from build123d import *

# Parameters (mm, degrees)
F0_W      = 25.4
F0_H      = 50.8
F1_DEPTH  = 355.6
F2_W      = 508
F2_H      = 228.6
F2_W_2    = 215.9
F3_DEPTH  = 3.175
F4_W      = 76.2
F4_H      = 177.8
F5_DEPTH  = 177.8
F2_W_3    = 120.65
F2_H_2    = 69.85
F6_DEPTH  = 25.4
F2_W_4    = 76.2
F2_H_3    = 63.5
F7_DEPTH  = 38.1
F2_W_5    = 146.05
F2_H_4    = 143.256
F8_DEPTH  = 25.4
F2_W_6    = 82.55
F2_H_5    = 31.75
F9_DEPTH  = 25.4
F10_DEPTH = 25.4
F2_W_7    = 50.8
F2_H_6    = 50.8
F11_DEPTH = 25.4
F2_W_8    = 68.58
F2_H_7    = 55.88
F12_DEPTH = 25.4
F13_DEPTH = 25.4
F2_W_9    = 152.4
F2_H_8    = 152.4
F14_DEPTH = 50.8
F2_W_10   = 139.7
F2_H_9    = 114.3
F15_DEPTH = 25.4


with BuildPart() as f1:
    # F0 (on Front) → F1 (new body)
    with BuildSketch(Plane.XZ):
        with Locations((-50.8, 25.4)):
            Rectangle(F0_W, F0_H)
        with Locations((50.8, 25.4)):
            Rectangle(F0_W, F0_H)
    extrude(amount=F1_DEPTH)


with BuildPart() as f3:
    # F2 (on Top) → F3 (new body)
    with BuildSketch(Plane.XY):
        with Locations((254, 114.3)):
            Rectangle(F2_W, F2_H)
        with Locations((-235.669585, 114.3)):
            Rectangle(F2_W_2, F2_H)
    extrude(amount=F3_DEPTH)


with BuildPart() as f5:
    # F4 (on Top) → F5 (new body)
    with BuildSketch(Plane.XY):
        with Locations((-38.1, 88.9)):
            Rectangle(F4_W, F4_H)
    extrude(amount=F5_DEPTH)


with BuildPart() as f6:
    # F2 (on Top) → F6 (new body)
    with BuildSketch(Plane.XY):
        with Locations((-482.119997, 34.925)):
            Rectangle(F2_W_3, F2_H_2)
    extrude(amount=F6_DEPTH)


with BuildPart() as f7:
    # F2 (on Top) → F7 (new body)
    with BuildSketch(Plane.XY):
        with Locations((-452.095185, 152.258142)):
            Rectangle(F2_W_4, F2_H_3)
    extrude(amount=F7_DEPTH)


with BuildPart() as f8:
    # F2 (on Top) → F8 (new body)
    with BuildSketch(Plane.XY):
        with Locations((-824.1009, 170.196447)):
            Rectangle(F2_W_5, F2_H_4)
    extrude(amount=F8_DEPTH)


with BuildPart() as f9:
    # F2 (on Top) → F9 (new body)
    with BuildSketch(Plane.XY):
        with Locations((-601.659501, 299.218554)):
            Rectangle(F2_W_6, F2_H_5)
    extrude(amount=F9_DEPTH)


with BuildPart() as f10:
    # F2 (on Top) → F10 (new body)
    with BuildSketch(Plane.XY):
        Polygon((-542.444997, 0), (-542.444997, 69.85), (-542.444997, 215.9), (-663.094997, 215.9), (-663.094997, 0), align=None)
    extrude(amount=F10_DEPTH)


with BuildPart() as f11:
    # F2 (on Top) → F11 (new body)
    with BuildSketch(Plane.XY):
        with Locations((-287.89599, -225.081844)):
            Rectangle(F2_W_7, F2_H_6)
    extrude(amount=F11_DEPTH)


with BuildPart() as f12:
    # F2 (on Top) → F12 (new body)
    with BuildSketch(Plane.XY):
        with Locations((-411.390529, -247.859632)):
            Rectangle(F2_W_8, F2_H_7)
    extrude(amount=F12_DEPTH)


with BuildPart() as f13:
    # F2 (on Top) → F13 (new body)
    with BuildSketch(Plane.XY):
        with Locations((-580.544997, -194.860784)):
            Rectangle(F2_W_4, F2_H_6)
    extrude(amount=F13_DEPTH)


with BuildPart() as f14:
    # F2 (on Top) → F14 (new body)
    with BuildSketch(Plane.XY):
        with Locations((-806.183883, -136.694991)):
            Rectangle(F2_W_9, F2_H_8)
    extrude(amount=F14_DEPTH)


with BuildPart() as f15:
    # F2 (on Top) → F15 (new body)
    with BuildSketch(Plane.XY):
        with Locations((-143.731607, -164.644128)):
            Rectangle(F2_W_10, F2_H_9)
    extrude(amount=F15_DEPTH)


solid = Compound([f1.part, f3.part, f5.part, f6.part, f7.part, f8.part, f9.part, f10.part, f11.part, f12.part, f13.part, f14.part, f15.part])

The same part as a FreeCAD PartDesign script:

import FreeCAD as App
import Part
import Sketcher
Q = App.Units.Quantity


def add_polygon(sketch, points):
    """Adds a closed chain of lines whose ends are joined by coincident constraints."""
    first, n = sketch.GeometryCount, len(points)
    for a, b in zip(points, points[1:] + points[:1]):
        sketch.addGeometry(Part.LineSegment(App.Vector(*a, 0), App.Vector(*b, 0)), False)
    for i in range(n):
        sketch.addConstraint(Sketcher.Constraint("Coincident", first + i, 2, first + (i + 1) % n, 1))

doc = App.newDocument("Part")
body = doc.addObject("PartDesign::Body", "Body")
body.AllowCompound = True

# Sketch on XZ plane
sketch1 = doc.addObject("Sketcher::SketchObject", "Sketch")
body.addObject(sketch1)
sketch1.AttachmentSupport = (doc.XZ_Plane, [""])
sketch1.MapMode = "FlatFace"
add_polygon(sketch1, [(-64, 51), (-64, 0), (-38, 0), (-38, 51)])  # lines 0-3
add_polygon(sketch1, [(38, 51), (38, 0), (64, 0), (64, 51)])  # lines 4-7
sketch1.addConstraint([
    Sketcher.Constraint("Vertical", 0),
    Sketcher.Constraint("Horizontal", 1),
    Sketcher.Constraint("Vertical", 2),
    Sketcher.Constraint("Horizontal", 3),
    Sketcher.Constraint("Vertical", 4),
    Sketcher.Constraint("Horizontal", 5),
    Sketcher.Constraint("Vertical", 6),
    Sketcher.Constraint("Horizontal", 7),
    Sketcher.Constraint("Symmetric", 1, 2, 4, 2, -1, 1),
    Sketcher.Constraint("Symmetric", 0, 2, 5, 2, -2),
    Sketcher.Constraint("Horizontal", 3, 2, 6, 2),
    Sketcher.Constraint("DistanceX", 1, 1, 1, 2, Q("1 in")),
    Sketcher.Constraint("DistanceY", 0, 2, 0, 1, Q("2 in")),
    Sketcher.Constraint("DistanceX", 1, 2, 4, 2, Q("3 in")),
])
pad1 = doc.addObject("PartDesign::Pad", "Pad")
body.addObject(pad1)
pad1.Profile = sketch1
pad1.Length = Q("14 in")
body2 = doc.addObject("PartDesign::Body", "Body001")
body2.AllowCompound = True

# Sketch on XY plane
sketch2 = doc.addObject("Sketcher::SketchObject", "Sketch001")
body2.addObject(sketch2)
sketch2.AttachmentSupport = (doc.getObject("XY_Plane001"), [""])
sketch2.MapMode = "FlatFace"
add_polygon(sketch2, [(0, 229), (0, 0), (508, 0), (508, 229)])  # lines 0-3
add_polygon(sketch2, [(-344, 229), (-344, 0), (-128, 0), (-128, 229)])  # lines 4-7
sketch2.addConstraint([
    Sketcher.Constraint("Vertical", 0),
    Sketcher.Constraint("Horizontal", 1),
    Sketcher.Constraint("Vertical", 2),
    Sketcher.Constraint("Horizontal", 3),
    Sketcher.Constraint("Vertical", 4),
    Sketcher.Constraint("Horizontal", 5),
    Sketcher.Constraint("Vertical", 6),
    Sketcher.Constraint("Horizontal", 7),
    Sketcher.Constraint("Coincident", 0, 2, -1, 1),
    Sketcher.Constraint("PointOnObject", 4, 2, -1),
    Sketcher.Constraint("Horizontal", 3, 2, 6, 2),
    Sketcher.Constraint("DistanceX", 1, 1, 1, 2, Q("20 in")),
    Sketcher.Constraint("DistanceY", 0, 2, 0, 1, Q("9 in")),
    Sketcher.Constraint("DistanceX", 5, 1, 5, 2, Q("8.5 in")),
    Sketcher.Constraint("DistanceX", 4, 2, -1, 1, 343.619585),
])
pad2 = doc.addObject("PartDesign::Pad", "Pad001")
body2.addObject(pad2)
pad2.Profile = sketch2
pad2.Length = Q("0.125 in")
body3 = doc.addObject("PartDesign::Body", "Body002")

# Sketch on XY plane
sketch3 = doc.addObject("Sketcher::SketchObject", "Sketch002")
body3.addObject(sketch3)
sketch3.AttachmentSupport = (doc.getObject("XY_Plane002"), [""])
sketch3.MapMode = "FlatFace"
add_polygon(sketch3, [(-76, 178), (-76, 0), (0, 0), (0, 178)])  # lines 0-3
sketch3.addConstraint([
    Sketcher.Constraint("Vertical", 0),
    Sketcher.Constraint("Horizontal", 1),
    Sketcher.Constraint("Vertical", 2),
    Sketcher.Constraint("Horizontal", 3),
    Sketcher.Constraint("Coincident", 1, 2, -1, 1),
    Sketcher.Constraint("DistanceX", 1, 1, 1, 2, Q("3 in")),
    Sketcher.Constraint("DistanceY", 0, 2, 0, 1, Q("7 in")),
])
pad3 = doc.addObject("PartDesign::Pad", "Pad002")
body3.addObject(pad3)
pad3.Profile = sketch3
pad3.Length = Q("7 in")
body4 = doc.addObject("PartDesign::Body", "Body003")

# Sketch on XY plane
sketch4 = doc.addObject("Sketcher::SketchObject", "Sketch003")
body4.addObject(sketch4)
sketch4.AttachmentSupport = (doc.getObject("XY_Plane003"), [""])
sketch4.MapMode = "FlatFace"
add_polygon(sketch4, [(-542, 70), (-542, 0), (-422, 0), (-422, 70)])  # lines 0-3
sketch4.addConstraint([
    Sketcher.Constraint("Vertical", 0),
    Sketcher.Constraint("Horizontal", 1),
    Sketcher.Constraint("Vertical", 2),
    Sketcher.Constraint("Horizontal", 3),
    Sketcher.Constraint("PointOnObject", 0, 2, -1),
    Sketcher.Constraint("DistanceX", 1, 1, 1, 2, Q("4.75 in")),
    Sketcher.Constraint("DistanceY", 0, 2, 0, 1, Q("2.75 in")),
    Sketcher.Constraint("DistanceX", 0, 2, -1, 1, 542.444997),
])
pad4 = doc.addObject("PartDesign::Pad", "Pad003")
body4.addObject(pad4)
pad4.Profile = sketch4
pad4.Length = Q("1 in")
body5 = doc.addObject("PartDesign::Body", "Body004")

# Sketch on XY plane
sketch5 = doc.addObject("Sketcher::SketchObject", "Sketch004")
body5.addObject(sketch5)
sketch5.AttachmentSupport = (doc.getObject("XY_Plane004"), [""])
sketch5.MapMode = "FlatFace"
add_polygon(sketch5, [(-490, 184), (-490, 121), (-414, 121), (-414, 184)])  # lines 0-3
sketch5.addConstraint([
    Sketcher.Constraint("Vertical", 0),
    Sketcher.Constraint("Horizontal", 1),
    Sketcher.Constraint("Vertical", 2),
    Sketcher.Constraint("Horizontal", 3),
    Sketcher.Constraint("DistanceX", 1, 1, 1, 2, Q("3 in")),
    Sketcher.Constraint("DistanceY", 0, 2, 0, 1, Q("2.5 in")),
    Sketcher.Constraint("DistanceY", -1, 1, 2, 2, 184.008142),
    Sketcher.Constraint("DistanceX", 0, 2, -1, 1, 490.195185),
])
pad5 = doc.addObject("PartDesign::Pad", "Pad004")
body5.addObject(pad5)
pad5.Profile = sketch5
pad5.Length = Q("1.5 in")
body6 = doc.addObject("PartDesign::Body", "Body005")

# Sketch on XY plane
sketch6 = doc.addObject("Sketcher::SketchObject", "Sketch005")
body6.addObject(sketch6)
sketch6.AttachmentSupport = (doc.getObject("XY_Plane005"), [""])
sketch6.MapMode = "FlatFace"
add_polygon(sketch6, [(-897, 242), (-897, 99), (-751, 99), (-751, 242)])  # lines 0-3
sketch6.addConstraint([
    Sketcher.Constraint("Vertical", 0),
    Sketcher.Constraint("Horizontal", 1),
    Sketcher.Constraint("Vertical", 2),
    Sketcher.Constraint("Horizontal", 3),
    Sketcher.Constraint("DistanceX", 1, 1, 1, 2, Q("5.75 in")),
    Sketcher.Constraint("DistanceY", 0, 2, 0, 1, Q("5.64 in")),
    Sketcher.Constraint("DistanceX", 0, 2, -1, 1, 897.1259),
    Sketcher.Constraint("DistanceY", -1, 1, 0, 2, 98.568447),
])
pad6 = doc.addObject("PartDesign::Pad", "Pad005")
body6.addObject(pad6)
pad6.Profile = sketch6
pad6.Length = Q("1 in")
body7 = doc.addObject("PartDesign::Body", "Body006")

# Sketch on XY plane
sketch7 = doc.addObject("Sketcher::SketchObject", "Sketch006")
body7.addObject(sketch7)
sketch7.AttachmentSupport = (doc.getObject("XY_Plane006"), [""])
sketch7.MapMode = "FlatFace"
add_polygon(sketch7, [(-643, 315), (-643, 283), (-560, 283), (-560, 315)])  # lines 0-3
sketch7.addConstraint([
    Sketcher.Constraint("Vertical", 0),
    Sketcher.Constraint("Horizontal", 1),
    Sketcher.Constraint("Vertical", 2),
    Sketcher.Constraint("Horizontal", 3),
    Sketcher.Constraint("DistanceX", 1, 1, 1, 2, Q("3.25 in")),
    Sketcher.Constraint("DistanceY", 0, 2, 0, 1, Q("1.25 in")),
    Sketcher.Constraint("DistanceX", 0, 2, -1, 1, 642.934501),
    Sketcher.Constraint("DistanceY", -1, 1, 0, 2, 283.343554),
])
pad7 = doc.addObject("PartDesign::Pad", "Pad006")
body7.addObject(pad7)
pad7.Profile = sketch7
pad7.Length = Q("1 in")
body8 = doc.addObject("PartDesign::Body", "Body007")

# Sketch on XY plane
sketch8 = doc.addObject("Sketcher::SketchObject", "Sketch007")
body8.addObject(sketch8)
sketch8.AttachmentSupport = (doc.getObject("XY_Plane007"), [""])
sketch8.MapMode = "FlatFace"
add_polygon(sketch8, [(-542, 0), (-542, 216), (-663, 216), (-663, 0)])  # lines 0-3
sketch8.addConstraint([
    Sketcher.Constraint("Vertical", 0),
    Sketcher.Constraint("Horizontal", 1),
    Sketcher.Constraint("Vertical", 2),
    Sketcher.Constraint("Horizontal", 3),
    Sketcher.Constraint("PointOnObject", 2, 2, -1),
    Sketcher.Constraint("DistanceY", 0, 1, 0, 2, Q("8.5 in")),
    Sketcher.Constraint("DistanceX", 1, 2, 1, 1, Q("4.75 in")),
    Sketcher.Constraint("DistanceX", 0, 2, -1, 1, 542.444997),
])
pad8 = doc.addObject("PartDesign::Pad", "Pad007")
body8.addObject(pad8)
pad8.Profile = sketch8
pad8.Length = Q("1 in")
body9 = doc.addObject("PartDesign::Body", "Body008")

# Sketch on XY plane
sketch9 = doc.addObject("Sketcher::SketchObject", "Sketch008")
body9.addObject(sketch9)
sketch9.AttachmentSupport = (doc.getObject("XY_Plane008"), [""])
sketch9.MapMode = "FlatFace"
add_polygon(sketch9, [(-313, -200), (-313, -250), (-262, -250), (-262, -200)])  # lines 0-3
sketch9.addConstraint([
    Sketcher.Constraint("Vertical", 0),
    Sketcher.Constraint("Horizontal", 1),
    Sketcher.Constraint("Vertical", 2),
    Sketcher.Constraint("Horizontal", 3),
    Sketcher.Constraint("Equal", 3, 0),
    Sketcher.Constraint("DistanceX", 1, 1, 1, 2, Q("2 in")),
    Sketcher.Constraint("DistanceX", 0, 2, -1, 1, 313.29599),
    Sketcher.Constraint("DistanceY", 0, 2, -1, 1, 250.481844),
])
pad9 = doc.addObject("PartDesign::Pad", "Pad008")
body9.addObject(pad9)
pad9.Profile = sketch9
pad9.Length = Q("1 in")
body10 = doc.addObject("PartDesign::Body", "Body009")

# Sketch on XY plane
sketch10 = doc.addObject("Sketcher::SketchObject", "Sketch009")
body10.addObject(sketch10)
sketch10.AttachmentSupport = (doc.getObject("XY_Plane009"), [""])
sketch10.MapMode = "FlatFace"
add_polygon(sketch10, [(-446, -220), (-446, -276), (-377, -276), (-377, -220)])  # lines 0-3
sketch10.addConstraint([
    Sketcher.Constraint("Vertical", 0),
    Sketcher.Constraint("Horizontal", 1),
    Sketcher.Constraint("Vertical", 2),
    Sketcher.Constraint("Horizontal", 3),
    Sketcher.Constraint("DistanceX", 1, 1, 1, 2, Q("2.7 in")),
    Sketcher.Constraint("DistanceY", 0, 2, 0, 1, Q("2.2 in")),
    Sketcher.Constraint("DistanceX", 0, 2, -1, 1, 445.680529),
    Sketcher.Constraint("DistanceY", 0, 2, -1, 1, 275.799632),
])
pad10 = doc.addObject("PartDesign::Pad", "Pad009")
body10.addObject(pad10)
pad10.Profile = sketch10
pad10.Length = Q("1 in")
body11 = doc.addObject("PartDesign::Body", "Body010")

# Sketch on XY plane
sketch11 = doc.addObject("Sketcher::SketchObject", "Sketch010")
body11.addObject(sketch11)
sketch11.AttachmentSupport = (doc.getObject("XY_Plane010"), [""])
sketch11.MapMode = "FlatFace"
add_polygon(sketch11, [(-619, -169), (-619, -220), (-542, -220), (-542, -169)])  # lines 0-3
sketch11.addConstraint([
    Sketcher.Constraint("Vertical", 0),
    Sketcher.Constraint("Horizontal", 1),
    Sketcher.Constraint("Vertical", 2),
    Sketcher.Constraint("Horizontal", 3),
    Sketcher.Constraint("DistanceX", 1, 1, 1, 2, Q("3 in")),
    Sketcher.Constraint("DistanceY", 0, 2, 0, 1, Q("2 in")),
    Sketcher.Constraint("DistanceX", 0, 2, -1, 1, 618.644997),
    Sketcher.Constraint("DistanceY", 0, 2, -1, 1, 220.260784),
])
pad11 = doc.addObject("PartDesign::Pad", "Pad010")
body11.addObject(pad11)
pad11.Profile = sketch11
pad11.Length = Q("1 in")
body12 = doc.addObject("PartDesign::Body", "Body011")

# Sketch on XY plane
sketch12 = doc.addObject("Sketcher::SketchObject", "Sketch011")
body12.addObject(sketch12)
sketch12.AttachmentSupport = (doc.getObject("XY_Plane011"), [""])
sketch12.MapMode = "FlatFace"
add_polygon(sketch12, [(-882, -60), (-882, -213), (-730, -213), (-730, -60)])  # lines 0-3
sketch12.addConstraint([
    Sketcher.Constraint("Vertical", 0),
    Sketcher.Constraint("Horizontal", 1),
    Sketcher.Constraint("Vertical", 2),
    Sketcher.Constraint("Horizontal", 3),
    Sketcher.Constraint("Equal", 3, 0),
    Sketcher.Constraint("DistanceX", 1, 1, 1, 2, Q("6 in")),
    Sketcher.Constraint("DistanceY", 0, 2, -1, 1, 212.894991),
    Sketcher.Constraint("DistanceX", 0, 2, -1, 1, 882.383883),
])
pad12 = doc.addObject("PartDesign::Pad", "Pad011")
body12.addObject(pad12)
pad12.Profile = sketch12
pad12.Length = Q("2 in")
body13 = doc.addObject("PartDesign::Body", "Body012")

# Sketch on XY plane
sketch13 = doc.addObject("Sketcher::SketchObject", "Sketch012")
body13.addObject(sketch13)
sketch13.AttachmentSupport = (doc.getObject("XY_Plane012"), [""])
sketch13.MapMode = "FlatFace"
add_polygon(sketch13, [(-214, -107), (-214, -222), (-74, -222), (-74, -107)])  # lines 0-3
sketch13.addConstraint([
    Sketcher.Constraint("Vertical", 0),
    Sketcher.Constraint("Horizontal", 1),
    Sketcher.Constraint("Vertical", 2),
    Sketcher.Constraint("Horizontal", 3),
    Sketcher.Constraint("DistanceX", 1, 1, 1, 2, Q("5.5 in")),
    Sketcher.Constraint("DistanceY", 0, 2, 0, 1, Q("4.5 in")),
    Sketcher.Constraint("DistanceY", 0, 2, -1, 1, 221.794128),
    Sketcher.Constraint("DistanceX", 0, 2, -1, 1, 213.581607),
])
pad13 = doc.addObject("PartDesign::Pad", "Pad012")
body13.addObject(pad13)
pad13.Profile = sketch13
pad13.Length = Q("1 in")

doc.recompute()
